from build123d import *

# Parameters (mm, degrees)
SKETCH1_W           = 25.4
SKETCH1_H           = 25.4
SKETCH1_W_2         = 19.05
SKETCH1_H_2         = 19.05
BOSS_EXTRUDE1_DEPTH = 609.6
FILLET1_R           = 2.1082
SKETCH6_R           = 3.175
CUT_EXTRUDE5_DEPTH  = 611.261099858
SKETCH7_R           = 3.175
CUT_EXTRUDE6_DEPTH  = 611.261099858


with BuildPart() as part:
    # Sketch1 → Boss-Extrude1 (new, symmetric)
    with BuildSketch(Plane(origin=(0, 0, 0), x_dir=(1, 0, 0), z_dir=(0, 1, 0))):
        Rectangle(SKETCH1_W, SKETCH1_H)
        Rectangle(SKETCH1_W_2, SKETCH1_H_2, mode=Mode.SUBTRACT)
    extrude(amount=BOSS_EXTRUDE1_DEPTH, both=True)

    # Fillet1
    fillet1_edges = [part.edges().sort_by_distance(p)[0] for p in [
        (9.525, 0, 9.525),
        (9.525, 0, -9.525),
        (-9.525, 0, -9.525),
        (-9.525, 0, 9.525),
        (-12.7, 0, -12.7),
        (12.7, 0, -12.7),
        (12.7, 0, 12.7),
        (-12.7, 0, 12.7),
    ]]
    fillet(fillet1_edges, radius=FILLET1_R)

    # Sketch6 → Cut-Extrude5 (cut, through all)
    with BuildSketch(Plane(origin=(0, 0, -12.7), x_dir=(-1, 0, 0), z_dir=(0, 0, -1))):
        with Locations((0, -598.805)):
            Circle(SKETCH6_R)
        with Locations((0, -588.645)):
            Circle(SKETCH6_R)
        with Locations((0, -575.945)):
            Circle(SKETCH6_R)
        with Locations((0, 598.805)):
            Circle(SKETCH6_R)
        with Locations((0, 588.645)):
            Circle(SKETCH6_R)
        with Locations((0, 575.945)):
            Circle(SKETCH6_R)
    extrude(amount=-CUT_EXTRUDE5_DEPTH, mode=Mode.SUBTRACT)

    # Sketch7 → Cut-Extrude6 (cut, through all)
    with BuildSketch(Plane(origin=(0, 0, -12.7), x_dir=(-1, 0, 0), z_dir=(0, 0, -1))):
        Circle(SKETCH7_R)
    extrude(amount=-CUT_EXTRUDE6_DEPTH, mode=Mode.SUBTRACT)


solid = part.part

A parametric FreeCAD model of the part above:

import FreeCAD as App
import Part
import Sketcher

V = App.Vector
Q = App.Units.Quantity


def edges_at(feature, points):
    """Names of the edges that pass closest to the given points."""
    edges = feature.Shape.Edges
    near = lambda p: min(range(len(edges)), key=lambda i: edges[i].distToShape(Part.Vertex(*p))[0])
    return sorted({f"Edge{near(p) + 1}" for p in points})


def add_polygon(sketch, points):
    """Adds a closed chain of lines whose ends are joined by coincident constraints."""
    first, n = sketch.GeometryCount, len(points)
    for a, b in zip(points, points[1:] + points[:1]):
        sketch.addGeometry(Part.LineSegment(App.Vector(*a, 0), App.Vector(*b, 0)), False)
    for i in range(n):
        sketch.addConstraint(Sketcher.Constraint("Coincident", first + i, 2, first + (i + 1) % n, 1))

doc = App.newDocument("Part")
params = doc.addObject("Spreadsheet::Sheet", "Params")
for row, (alias, value) in enumerate([
    ("sketch1_width", "1 in"),
    ("sketch1_width2", "0.75 in"),
    ("pad1_length", "48 in"),
    ("fillet_radius", "0.083 in"),
    ("sketch2_diameter", "0.25 in"),
    ("sketch3_diameter", "0.25 in"),
], start=1):
    params.set(f"A{row}", alias)
    params.set(f"B{row}", "=" + value)
    params.setAlias(f"B{row}", alias)

body = doc.addObject("PartDesign::Body", "Body")

# Sketch on XZ plane
sketch1 = doc.addObject("Sketcher::SketchObject", "Sketch")
body.addObject(sketch1)
sketch1.AttachmentSupport = (doc.XZ_Plane, [""])
sketch1.MapMode = "FlatFace"
add_polygon(sketch1, [(-13, -13), (-13, 13), (13, 13), (13, -13)])  # lines 0-3
add_polygon(sketch1, [(10, 10), (-10, 10), (-10, -10), (10, -10)])  # lines 4-7
sketch1.addConstraint([
    Sketcher.Constraint("Vertical", 0),
    Sketcher.Constraint("Horizontal", 1),
    Sketcher.Constraint("Vertical", 2),
    Sketcher.Constraint("Horizontal", 3),
    Sketcher.Constraint("Horizontal", 4),
    Sketcher.Constraint("Vertical", 5),
    Sketcher.Constraint("Horizontal", 6),
    Sketcher.Constraint("Vertical", 7),
    Sketcher.Constraint("Symmetric", 0, 2, 2, 2, -1, 1),
    Sketcher.Constraint("Symmetric", 4, 2, 6, 2, -1, 1),
    Sketcher.Constraint("Equal", 3, 0),
    Sketcher.Constraint("Equal", 6, 5),
    Sketcher.Constraint("DistanceX", 1, 1, 1, 2, Q("1 in")),
    Sketcher.Constraint("DistanceX", 4, 2, 4, 1, Q("0.75 in")),
])
sketch1.setExpression("Constraints[20]", "Params.sketch1_width")
sketch1.setExpression("Constraints[21]", "Params.sketch1_width2")
pad1 = doc.addObject("PartDesign::Pad", "Pad")
body.addObject(pad1)
pad1.Profile = sketch1
pad1.setExpression("Length", "Params.pad1_length")
pad1.Midplane = True
doc.recompute()

fillet = doc.addObject("PartDesign::Fillet", "Fillet")
body.addObject(fillet)
fillet.Base = (pad1, edges_at(pad1, [
    (9.525, 0, 9.525),
    (9.525, 0, -9.525),
    (-9.525, 0, -9.525),
    (-9.525, 0, 9.525),
    (-12.7, 0, -12.7),
    (12.7, 0, -12.7),
    (12.7, 0, 12.7),
    (-12.7, 0, 12.7),
]))
fillet.setExpression("Radius", "Params.fillet_radius")

# Sketch on XY plane
sketch2 = doc.addObject("Sketcher::SketchObject", "Sketch001")
body.addObject(sketch2)
sketch2.AttachmentSupport = (doc.XY_Plane, [""])
sketch2.MapMode = "FlatFace"
sketch2.AttachmentOffset = App.Placement(V(0, 0, -0.5 * 25.4), App.Rotation())
sketch2.addGeometry([
    Part.Circle(V(0, -598.8, 0), V(0, 0, 1), 3.2),  # 0
    Part.Circle(V(0, -588.6, 0), V(0, 0, 1), 3.2),  # 1
    Part.Circle(V(0, -575.9, 0), V(0, 0, 1), 3.2),  # 2
    Part.Circle(V(0, 598.8, 0), V(0, 0, 1), 3.2),  # 3
    Part.Circle(V(0, 588.6, 0), V(0, 0, 1), 3.2),  # 4
    Part.Circle(V(0, 575.9, 0), V(0, 0, 1), 3.2),  # 5
], False)
sketch2.addConstraint([
    Sketcher.Constraint("Equal", 0, 1),
    Sketcher.Constraint("Equal", 1, 2),
    Sketcher.Constraint("Equal", 2, 3),
    Sketcher.Constraint("Equal", 3, 4),
    Sketcher.Constraint("Equal", 4, 5),
    Sketcher.Constraint("Symmetric", 0, 3, 3, 3, -1, 1),
    Sketcher.Constraint("Symmetric", 1, 3, 4, 3, -1, 1),
    Sketcher.Constraint("Symmetric", 2, 3, 5, 3, -1, 1),
    Sketcher.Constraint("PointOnObject", 0, 3, -2),
    Sketcher.Constraint("PointOnObject", 1, 3, -2),
    Sketcher.Constraint("PointOnObject", 2, 3, -2),
    Sketcher.Constraint("Diameter", 0, Q("0.25 in")),
    Sketcher.Constraint("DistanceY", 0, 3, 1, 3, Q("0.4 in")),
    Sketcher.Constraint("DistanceY", 1, 3, 2, 3, Q("0.5 in")),
    Sketcher.Constraint("DistanceY", 2, 3, 3, 3, Q("46.25 in")),
])
sketch2.setExpression("Constraints[11]", "Params.sketch2_diameter")
pocket1 = doc.addObject("PartDesign::Pocket", "Pocket")
body.addObject(pocket1)
pocket1.Profile = sketch2
pocket1.Type = "ThroughAll"
pocket1.Reversed = True

# Sketch on XY plane
sketch3 = doc.addObject("Sketcher::SketchObject", "Sketch002")
body.addObject(sketch3)
sketch3.AttachmentSupport = (doc.XY_Plane, [""])
sketch3.MapMode = "FlatFace"
sketch3.AttachmentOffset = App.Placement(V(0, 0, -0.5 * 25.4), App.Rotation())
sketch3.addGeometry(Part.Circle(V(0, 0, 0), V(0, 0, 1), 3.2), False)
sketch3.addConstraint([
    Sketcher.Constraint("Coincident", 0, 3, -1, 1),
    Sketcher.Constraint("Diameter", 0, Q("0.25 in")),
])
sketch3.setExpression("Constraints[1]", "Params.sketch3_diameter")
pocket2 = doc.addObject("PartDesign::Pocket", "Pocket001")
body.addObject(pocket2)
pocket2.Profile = sketch3
pocket2.Type = "ThroughAll"
pocket2.Reversed = True

doc.recompute()
